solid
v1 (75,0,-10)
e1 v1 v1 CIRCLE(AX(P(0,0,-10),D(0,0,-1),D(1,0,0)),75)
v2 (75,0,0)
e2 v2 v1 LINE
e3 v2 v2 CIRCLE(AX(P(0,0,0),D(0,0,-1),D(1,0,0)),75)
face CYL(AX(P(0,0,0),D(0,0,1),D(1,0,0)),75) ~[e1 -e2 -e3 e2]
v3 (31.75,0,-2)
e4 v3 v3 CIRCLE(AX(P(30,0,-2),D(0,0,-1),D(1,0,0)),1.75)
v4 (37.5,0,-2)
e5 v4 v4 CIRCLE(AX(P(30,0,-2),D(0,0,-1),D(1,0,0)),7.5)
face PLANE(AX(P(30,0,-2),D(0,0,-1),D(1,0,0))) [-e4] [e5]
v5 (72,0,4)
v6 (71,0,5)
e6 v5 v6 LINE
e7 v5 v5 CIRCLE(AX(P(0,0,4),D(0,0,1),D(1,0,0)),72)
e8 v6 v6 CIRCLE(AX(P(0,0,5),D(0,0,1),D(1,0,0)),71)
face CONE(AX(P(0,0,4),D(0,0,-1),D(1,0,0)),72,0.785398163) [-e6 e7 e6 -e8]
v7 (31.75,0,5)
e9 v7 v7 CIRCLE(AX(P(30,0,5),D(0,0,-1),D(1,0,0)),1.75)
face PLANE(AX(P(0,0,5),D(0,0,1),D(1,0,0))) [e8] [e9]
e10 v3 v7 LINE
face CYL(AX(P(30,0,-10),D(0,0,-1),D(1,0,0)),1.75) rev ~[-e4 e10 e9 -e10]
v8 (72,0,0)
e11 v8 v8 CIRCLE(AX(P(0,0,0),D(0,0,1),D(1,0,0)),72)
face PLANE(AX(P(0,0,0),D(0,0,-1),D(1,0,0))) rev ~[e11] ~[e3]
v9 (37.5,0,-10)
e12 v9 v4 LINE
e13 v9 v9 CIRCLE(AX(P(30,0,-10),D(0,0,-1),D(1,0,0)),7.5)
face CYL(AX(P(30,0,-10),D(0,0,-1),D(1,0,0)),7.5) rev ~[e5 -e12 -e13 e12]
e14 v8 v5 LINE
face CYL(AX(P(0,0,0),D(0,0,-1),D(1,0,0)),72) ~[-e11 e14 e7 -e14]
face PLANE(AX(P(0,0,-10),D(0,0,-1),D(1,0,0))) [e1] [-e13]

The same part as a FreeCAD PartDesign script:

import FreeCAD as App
import Part
import Sketcher
Q = App.Units.Quantity


def edges_at(feature, points):
    """Names of the edges that pass closest to the given points."""
    edges = feature.Shape.Edges
    near = lambda p: min(range(len(edges)), key=lambda i: edges[i].distToShape(Part.Vertex(*p))[0])
    return sorted({f"Edge{near(p) + 1}" for p in points})

doc = App.newDocument("Part")
body = doc.addObject("PartDesign::Body", "Body")

sketch1 = body.newObject("Sketcher::SketchObject", "Sketch")
sketch1.AttachmentSupport = (doc.getObject("XY_Plane"), [""])
sketch1.MapMode = "FlatFace"
sketch1.addGeometry(Part.Circle(App.Vector(0, 0, 0), App.Vector(0, 0, 1), 72), False)
sketch1.addConstraint([
    Sketcher.Constraint("Coincident", 0, 3, -1, 1),
    Sketcher.Constraint("Diameter", 0, Q("144 mm")),
])
pad1 = body.newObject("PartDesign::Pad", "Pad")
pad1.Profile = sketch1
pad1.Length = 5

sketch2 = body.newObject("Sketcher::SketchObject", "Sketch001")
sketch2.AttachmentSupport = (doc.getObject("XY_Plane"), [""])
sketch2.MapMode = "FlatFace"
sketch2.addGeometry(Part.Circle(App.Vector(0, 0, 0), App.Vector(0, 0, 1), 75), False)
sketch2.addConstraint([
    Sketcher.Constraint("Coincident", 0, 3, -1, 1),
    Sketcher.Constraint("Diameter", 0, Q("150 mm")),
])
pad2 = body.newObject("PartDesign::Pad", "Pad001")
pad2.Profile = sketch2
pad2.Length = 10
pad2.Reversed = True
doc.recompute()

chamfer = body.newObject("PartDesign::Chamfer", "Chamfer")
chamfer.Base = (pad2, edges_at(pad2, [(-72, 0, 5)]))
chamfer.Size = 1

sketch3 = body.newObject("Sketcher::SketchObject", "Sketch002")
sketch3.AttachmentSupport = (doc.getObject("XY_Plane"), [""])
sketch3.MapMode = "FlatFace"
sketch3.AttachmentOffset = App.Placement(App.Vector(0, 0, -10), App.Rotation())
sketch3.addGeometry(Part.Circle(App.Vector(30, 0, 0), App.Vector(0, 0, 1), 1.8), False)
sketch3.addConstraint([
    Sketcher.Constraint("PointOnObject", 0, 3, -1),
    Sketcher.Constraint("Diameter", 0, Q("3.5 mm")),
    Sketcher.Constraint("DistanceX", -1, 1, 0, 3, Q("30 mm")),
])
pocket1 = body.newObject("PartDesign::Pocket", "Pocket")
pocket1.Profile = sketch3
pocket1.Type = "ThroughAll"
pocket1.Reversed = True

sketch4 = body.newObject("Sketcher::SketchObject", "Sketch003")
sketch4.AttachmentSupport = (doc.getObject("XY_Plane"), [""])
sketch4.MapMode = "FlatFace"
sketch4.AttachmentOffset = App.Placement(App.Vector(0, 0, -10), App.Rotation())
sketch4.addGeometry(Part.Circle(App.Vector(30, 0, 0), App.Vector(0, 0, 1), 8), False)
sketch4.addConstraint([
    Sketcher.Constraint("PointOnObject", 0, 3, -1),
    Sketcher.Constraint("Diameter", 0, Q("15 mm")),
    Sketcher.Constraint("DistanceX", -1, 1, 0, 3, Q("30 mm")),
])
pocket2 = body.newObject("PartDesign::Pocket", "Pocket001")
pocket2.Profile = sketch4
pocket2.Length = 8
pocket2.Reversed = True

doc.recompute()
